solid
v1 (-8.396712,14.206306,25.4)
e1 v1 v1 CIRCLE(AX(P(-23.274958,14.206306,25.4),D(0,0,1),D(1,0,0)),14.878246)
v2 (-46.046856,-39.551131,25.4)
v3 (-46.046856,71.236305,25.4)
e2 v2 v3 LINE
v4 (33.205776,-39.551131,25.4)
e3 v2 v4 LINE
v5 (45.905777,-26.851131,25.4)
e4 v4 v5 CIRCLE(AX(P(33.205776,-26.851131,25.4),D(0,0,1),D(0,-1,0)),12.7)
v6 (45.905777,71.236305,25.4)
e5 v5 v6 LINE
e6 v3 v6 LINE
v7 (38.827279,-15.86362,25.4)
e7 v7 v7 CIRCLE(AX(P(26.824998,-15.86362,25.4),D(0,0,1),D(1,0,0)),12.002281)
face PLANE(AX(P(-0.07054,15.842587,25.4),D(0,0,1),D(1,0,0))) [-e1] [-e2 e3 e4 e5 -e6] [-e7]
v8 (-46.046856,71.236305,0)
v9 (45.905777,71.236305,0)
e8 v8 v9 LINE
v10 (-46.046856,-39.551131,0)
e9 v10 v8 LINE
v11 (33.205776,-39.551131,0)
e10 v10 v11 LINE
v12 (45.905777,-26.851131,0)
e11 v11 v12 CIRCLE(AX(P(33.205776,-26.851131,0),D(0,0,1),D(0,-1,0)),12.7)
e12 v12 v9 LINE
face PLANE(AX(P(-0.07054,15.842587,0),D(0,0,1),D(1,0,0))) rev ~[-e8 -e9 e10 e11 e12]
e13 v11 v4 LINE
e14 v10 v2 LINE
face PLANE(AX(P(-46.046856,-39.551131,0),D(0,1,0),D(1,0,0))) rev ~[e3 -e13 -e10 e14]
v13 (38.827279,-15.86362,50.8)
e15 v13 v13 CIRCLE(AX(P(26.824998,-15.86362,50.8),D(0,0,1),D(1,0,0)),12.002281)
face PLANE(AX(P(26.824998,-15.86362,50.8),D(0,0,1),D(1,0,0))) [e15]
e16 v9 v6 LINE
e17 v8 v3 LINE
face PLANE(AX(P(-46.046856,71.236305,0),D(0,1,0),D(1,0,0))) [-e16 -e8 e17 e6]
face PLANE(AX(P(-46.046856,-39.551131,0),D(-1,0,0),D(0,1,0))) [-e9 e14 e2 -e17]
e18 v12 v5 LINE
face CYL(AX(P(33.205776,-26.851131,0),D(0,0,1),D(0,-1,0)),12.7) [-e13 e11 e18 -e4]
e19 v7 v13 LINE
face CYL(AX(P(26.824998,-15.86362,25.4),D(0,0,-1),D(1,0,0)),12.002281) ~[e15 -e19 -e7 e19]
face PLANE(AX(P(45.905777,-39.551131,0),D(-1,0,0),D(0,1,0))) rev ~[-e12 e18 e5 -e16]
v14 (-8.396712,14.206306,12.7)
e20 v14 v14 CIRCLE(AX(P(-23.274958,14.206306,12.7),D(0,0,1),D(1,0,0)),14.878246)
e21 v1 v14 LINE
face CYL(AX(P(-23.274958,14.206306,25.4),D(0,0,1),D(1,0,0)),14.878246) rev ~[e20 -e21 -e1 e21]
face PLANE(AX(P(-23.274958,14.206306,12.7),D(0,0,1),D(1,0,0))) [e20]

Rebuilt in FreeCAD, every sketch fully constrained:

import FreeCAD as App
import Part
import Sketcher
Q = App.Units.Quantity


def edges_at(feature, points):
    """Names of the edges that pass closest to the given points."""
    edges = feature.Shape.Edges
    near = lambda p: min(range(len(edges)), key=lambda i: edges[i].distToShape(Part.Vertex(*p))[0])
    return sorted({f"Edge{near(p) + 1}" for p in points})

doc = App.newDocument("Part")
body = doc.addObject("PartDesign::Body", "Body")

sketch1 = doc.addObject("Sketcher::SketchObject", "Sketch")
body.addObject(sketch1)
sketch1.AttachmentSupport = (doc.XY_Plane, [""])
sketch1.MapMode = "FlatFace"
sketch1.addGeometry(Part.LineSegment(App.Vector(-46, 71, 0), App.Vector(-46, -40, 0)), False)
sketch1.addGeometry(Part.LineSegment(App.Vector(-46, -40, 0), App.Vector(46, -40, 0)), False)
sketch1.addGeometry(Part.LineSegment(App.Vector(46, -40, 0), App.Vector(46, 71, 0)), False)
sketch1.addGeometry(Part.LineSegment(App.Vector(46, 71, 0), App.Vector(-46, 71, 0)), False)
sketch1.addConstraint(Sketcher.Constraint("Coincident", 0, 2, 1, 1))
sketch1.addConstraint(Sketcher.Constraint("Coincident", 1, 2, 2, 1))
sketch1.addConstraint(Sketcher.Constraint("Coincident", 2, 2, 3, 1))
sketch1.addConstraint(Sketcher.Constraint("Coincident", 3, 2, 0, 1))
sketch1.addConstraint(Sketcher.Constraint("Vertical", 0))
sketch1.addConstraint(Sketcher.Constraint("Horizontal", 1))
sketch1.addConstraint(Sketcher.Constraint("Vertical", 2))
sketch1.addConstraint(Sketcher.Constraint("Horizontal", 3))
sketch1.addConstraint(Sketcher.Constraint("DistanceX", 1, 1, 1, 2, Q("91.952633 mm")))
sketch1.addConstraint(Sketcher.Constraint("DistanceY", 0, 2, 0, 1, Q("110.787436 mm")))
sketch1.addConstraint(Sketcher.Constraint("DistanceY", 0, 2, -1, 1, Q("39.551131 mm")))
sketch1.addConstraint(Sketcher.Constraint("DistanceX", 0, 2, -1, 1, Q("46.046856 mm")))
pad1 = doc.addObject("PartDesign::Pad", "Pad")
body.addObject(pad1)
pad1.Profile = sketch1
pad1.Length = Q("1 in")
doc.recompute()

fillet = doc.addObject("PartDesign::Fillet", "Fillet")
body.addObject(fillet)
fillet.Base = (pad1, edges_at(pad1, [(45.906, -39.551, 12.7)]))
fillet.Radius = Q("0.5 in")

sketch2 = doc.addObject("Sketcher::SketchObject", "Sketch001")
body.addObject(sketch2)
sketch2.AttachmentSupport = (doc.XY_Plane, [""])
sketch2.MapMode = "FlatFace"
sketch2.AttachmentOffset = App.Placement(App.Vector(0, 0, 1 * 25.4), App.Rotation())
sketch2.addGeometry(Part.Circle(App.Vector(27, -16, 0), App.Vector(0, 0, 1), 12), False)
sketch2.addConstraint(Sketcher.Constraint("Diameter", 0, Q("24.004562 mm")))
sketch2.addConstraint(Sketcher.Constraint("DistanceX", -1, 1, 0, 3, Q("26.824998 mm")))
sketch2.addConstraint(Sketcher.Constraint("DistanceY", 0, 3, -1, 1, Q("15.86362 mm")))
pad2 = doc.addObject("PartDesign::Pad", "Pad001")
body.addObject(pad2)
pad2.Profile = sketch2
pad2.Length = Q("1 in")

sketch3 = doc.addObject("Sketcher::SketchObject", "Sketch002")
body.addObject(sketch3)
sketch3.AttachmentSupport = (doc.XY_Plane, [""])
sketch3.MapMode = "FlatFace"
sketch3.AttachmentOffset = App.Placement(App.Vector(0, 0, 1 * 25.4), App.Rotation())
sketch3.addGeometry(Part.Circle(App.Vector(-23, 14, 0), App.Vector(0, 0, 1), 15), False)
sketch3.addConstraint(Sketcher.Constraint("Diameter", 0, Q("29.756492 mm")))
sketch3.addConstraint(Sketcher.Constraint("DistanceX", 0, 3, -1, 1, Q("23.274958 mm")))
sketch3.addConstraint(Sketcher.Constraint("DistanceY", -1, 1, 0, 3, Q("14.206306 mm")))
pocket1 = doc.addObject("PartDesign::Pocket", "Pocket")
body.addObject(pocket1)
pocket1.Profile = sketch3
pocket1.Length = Q("0.5 in")

doc.recompute()
